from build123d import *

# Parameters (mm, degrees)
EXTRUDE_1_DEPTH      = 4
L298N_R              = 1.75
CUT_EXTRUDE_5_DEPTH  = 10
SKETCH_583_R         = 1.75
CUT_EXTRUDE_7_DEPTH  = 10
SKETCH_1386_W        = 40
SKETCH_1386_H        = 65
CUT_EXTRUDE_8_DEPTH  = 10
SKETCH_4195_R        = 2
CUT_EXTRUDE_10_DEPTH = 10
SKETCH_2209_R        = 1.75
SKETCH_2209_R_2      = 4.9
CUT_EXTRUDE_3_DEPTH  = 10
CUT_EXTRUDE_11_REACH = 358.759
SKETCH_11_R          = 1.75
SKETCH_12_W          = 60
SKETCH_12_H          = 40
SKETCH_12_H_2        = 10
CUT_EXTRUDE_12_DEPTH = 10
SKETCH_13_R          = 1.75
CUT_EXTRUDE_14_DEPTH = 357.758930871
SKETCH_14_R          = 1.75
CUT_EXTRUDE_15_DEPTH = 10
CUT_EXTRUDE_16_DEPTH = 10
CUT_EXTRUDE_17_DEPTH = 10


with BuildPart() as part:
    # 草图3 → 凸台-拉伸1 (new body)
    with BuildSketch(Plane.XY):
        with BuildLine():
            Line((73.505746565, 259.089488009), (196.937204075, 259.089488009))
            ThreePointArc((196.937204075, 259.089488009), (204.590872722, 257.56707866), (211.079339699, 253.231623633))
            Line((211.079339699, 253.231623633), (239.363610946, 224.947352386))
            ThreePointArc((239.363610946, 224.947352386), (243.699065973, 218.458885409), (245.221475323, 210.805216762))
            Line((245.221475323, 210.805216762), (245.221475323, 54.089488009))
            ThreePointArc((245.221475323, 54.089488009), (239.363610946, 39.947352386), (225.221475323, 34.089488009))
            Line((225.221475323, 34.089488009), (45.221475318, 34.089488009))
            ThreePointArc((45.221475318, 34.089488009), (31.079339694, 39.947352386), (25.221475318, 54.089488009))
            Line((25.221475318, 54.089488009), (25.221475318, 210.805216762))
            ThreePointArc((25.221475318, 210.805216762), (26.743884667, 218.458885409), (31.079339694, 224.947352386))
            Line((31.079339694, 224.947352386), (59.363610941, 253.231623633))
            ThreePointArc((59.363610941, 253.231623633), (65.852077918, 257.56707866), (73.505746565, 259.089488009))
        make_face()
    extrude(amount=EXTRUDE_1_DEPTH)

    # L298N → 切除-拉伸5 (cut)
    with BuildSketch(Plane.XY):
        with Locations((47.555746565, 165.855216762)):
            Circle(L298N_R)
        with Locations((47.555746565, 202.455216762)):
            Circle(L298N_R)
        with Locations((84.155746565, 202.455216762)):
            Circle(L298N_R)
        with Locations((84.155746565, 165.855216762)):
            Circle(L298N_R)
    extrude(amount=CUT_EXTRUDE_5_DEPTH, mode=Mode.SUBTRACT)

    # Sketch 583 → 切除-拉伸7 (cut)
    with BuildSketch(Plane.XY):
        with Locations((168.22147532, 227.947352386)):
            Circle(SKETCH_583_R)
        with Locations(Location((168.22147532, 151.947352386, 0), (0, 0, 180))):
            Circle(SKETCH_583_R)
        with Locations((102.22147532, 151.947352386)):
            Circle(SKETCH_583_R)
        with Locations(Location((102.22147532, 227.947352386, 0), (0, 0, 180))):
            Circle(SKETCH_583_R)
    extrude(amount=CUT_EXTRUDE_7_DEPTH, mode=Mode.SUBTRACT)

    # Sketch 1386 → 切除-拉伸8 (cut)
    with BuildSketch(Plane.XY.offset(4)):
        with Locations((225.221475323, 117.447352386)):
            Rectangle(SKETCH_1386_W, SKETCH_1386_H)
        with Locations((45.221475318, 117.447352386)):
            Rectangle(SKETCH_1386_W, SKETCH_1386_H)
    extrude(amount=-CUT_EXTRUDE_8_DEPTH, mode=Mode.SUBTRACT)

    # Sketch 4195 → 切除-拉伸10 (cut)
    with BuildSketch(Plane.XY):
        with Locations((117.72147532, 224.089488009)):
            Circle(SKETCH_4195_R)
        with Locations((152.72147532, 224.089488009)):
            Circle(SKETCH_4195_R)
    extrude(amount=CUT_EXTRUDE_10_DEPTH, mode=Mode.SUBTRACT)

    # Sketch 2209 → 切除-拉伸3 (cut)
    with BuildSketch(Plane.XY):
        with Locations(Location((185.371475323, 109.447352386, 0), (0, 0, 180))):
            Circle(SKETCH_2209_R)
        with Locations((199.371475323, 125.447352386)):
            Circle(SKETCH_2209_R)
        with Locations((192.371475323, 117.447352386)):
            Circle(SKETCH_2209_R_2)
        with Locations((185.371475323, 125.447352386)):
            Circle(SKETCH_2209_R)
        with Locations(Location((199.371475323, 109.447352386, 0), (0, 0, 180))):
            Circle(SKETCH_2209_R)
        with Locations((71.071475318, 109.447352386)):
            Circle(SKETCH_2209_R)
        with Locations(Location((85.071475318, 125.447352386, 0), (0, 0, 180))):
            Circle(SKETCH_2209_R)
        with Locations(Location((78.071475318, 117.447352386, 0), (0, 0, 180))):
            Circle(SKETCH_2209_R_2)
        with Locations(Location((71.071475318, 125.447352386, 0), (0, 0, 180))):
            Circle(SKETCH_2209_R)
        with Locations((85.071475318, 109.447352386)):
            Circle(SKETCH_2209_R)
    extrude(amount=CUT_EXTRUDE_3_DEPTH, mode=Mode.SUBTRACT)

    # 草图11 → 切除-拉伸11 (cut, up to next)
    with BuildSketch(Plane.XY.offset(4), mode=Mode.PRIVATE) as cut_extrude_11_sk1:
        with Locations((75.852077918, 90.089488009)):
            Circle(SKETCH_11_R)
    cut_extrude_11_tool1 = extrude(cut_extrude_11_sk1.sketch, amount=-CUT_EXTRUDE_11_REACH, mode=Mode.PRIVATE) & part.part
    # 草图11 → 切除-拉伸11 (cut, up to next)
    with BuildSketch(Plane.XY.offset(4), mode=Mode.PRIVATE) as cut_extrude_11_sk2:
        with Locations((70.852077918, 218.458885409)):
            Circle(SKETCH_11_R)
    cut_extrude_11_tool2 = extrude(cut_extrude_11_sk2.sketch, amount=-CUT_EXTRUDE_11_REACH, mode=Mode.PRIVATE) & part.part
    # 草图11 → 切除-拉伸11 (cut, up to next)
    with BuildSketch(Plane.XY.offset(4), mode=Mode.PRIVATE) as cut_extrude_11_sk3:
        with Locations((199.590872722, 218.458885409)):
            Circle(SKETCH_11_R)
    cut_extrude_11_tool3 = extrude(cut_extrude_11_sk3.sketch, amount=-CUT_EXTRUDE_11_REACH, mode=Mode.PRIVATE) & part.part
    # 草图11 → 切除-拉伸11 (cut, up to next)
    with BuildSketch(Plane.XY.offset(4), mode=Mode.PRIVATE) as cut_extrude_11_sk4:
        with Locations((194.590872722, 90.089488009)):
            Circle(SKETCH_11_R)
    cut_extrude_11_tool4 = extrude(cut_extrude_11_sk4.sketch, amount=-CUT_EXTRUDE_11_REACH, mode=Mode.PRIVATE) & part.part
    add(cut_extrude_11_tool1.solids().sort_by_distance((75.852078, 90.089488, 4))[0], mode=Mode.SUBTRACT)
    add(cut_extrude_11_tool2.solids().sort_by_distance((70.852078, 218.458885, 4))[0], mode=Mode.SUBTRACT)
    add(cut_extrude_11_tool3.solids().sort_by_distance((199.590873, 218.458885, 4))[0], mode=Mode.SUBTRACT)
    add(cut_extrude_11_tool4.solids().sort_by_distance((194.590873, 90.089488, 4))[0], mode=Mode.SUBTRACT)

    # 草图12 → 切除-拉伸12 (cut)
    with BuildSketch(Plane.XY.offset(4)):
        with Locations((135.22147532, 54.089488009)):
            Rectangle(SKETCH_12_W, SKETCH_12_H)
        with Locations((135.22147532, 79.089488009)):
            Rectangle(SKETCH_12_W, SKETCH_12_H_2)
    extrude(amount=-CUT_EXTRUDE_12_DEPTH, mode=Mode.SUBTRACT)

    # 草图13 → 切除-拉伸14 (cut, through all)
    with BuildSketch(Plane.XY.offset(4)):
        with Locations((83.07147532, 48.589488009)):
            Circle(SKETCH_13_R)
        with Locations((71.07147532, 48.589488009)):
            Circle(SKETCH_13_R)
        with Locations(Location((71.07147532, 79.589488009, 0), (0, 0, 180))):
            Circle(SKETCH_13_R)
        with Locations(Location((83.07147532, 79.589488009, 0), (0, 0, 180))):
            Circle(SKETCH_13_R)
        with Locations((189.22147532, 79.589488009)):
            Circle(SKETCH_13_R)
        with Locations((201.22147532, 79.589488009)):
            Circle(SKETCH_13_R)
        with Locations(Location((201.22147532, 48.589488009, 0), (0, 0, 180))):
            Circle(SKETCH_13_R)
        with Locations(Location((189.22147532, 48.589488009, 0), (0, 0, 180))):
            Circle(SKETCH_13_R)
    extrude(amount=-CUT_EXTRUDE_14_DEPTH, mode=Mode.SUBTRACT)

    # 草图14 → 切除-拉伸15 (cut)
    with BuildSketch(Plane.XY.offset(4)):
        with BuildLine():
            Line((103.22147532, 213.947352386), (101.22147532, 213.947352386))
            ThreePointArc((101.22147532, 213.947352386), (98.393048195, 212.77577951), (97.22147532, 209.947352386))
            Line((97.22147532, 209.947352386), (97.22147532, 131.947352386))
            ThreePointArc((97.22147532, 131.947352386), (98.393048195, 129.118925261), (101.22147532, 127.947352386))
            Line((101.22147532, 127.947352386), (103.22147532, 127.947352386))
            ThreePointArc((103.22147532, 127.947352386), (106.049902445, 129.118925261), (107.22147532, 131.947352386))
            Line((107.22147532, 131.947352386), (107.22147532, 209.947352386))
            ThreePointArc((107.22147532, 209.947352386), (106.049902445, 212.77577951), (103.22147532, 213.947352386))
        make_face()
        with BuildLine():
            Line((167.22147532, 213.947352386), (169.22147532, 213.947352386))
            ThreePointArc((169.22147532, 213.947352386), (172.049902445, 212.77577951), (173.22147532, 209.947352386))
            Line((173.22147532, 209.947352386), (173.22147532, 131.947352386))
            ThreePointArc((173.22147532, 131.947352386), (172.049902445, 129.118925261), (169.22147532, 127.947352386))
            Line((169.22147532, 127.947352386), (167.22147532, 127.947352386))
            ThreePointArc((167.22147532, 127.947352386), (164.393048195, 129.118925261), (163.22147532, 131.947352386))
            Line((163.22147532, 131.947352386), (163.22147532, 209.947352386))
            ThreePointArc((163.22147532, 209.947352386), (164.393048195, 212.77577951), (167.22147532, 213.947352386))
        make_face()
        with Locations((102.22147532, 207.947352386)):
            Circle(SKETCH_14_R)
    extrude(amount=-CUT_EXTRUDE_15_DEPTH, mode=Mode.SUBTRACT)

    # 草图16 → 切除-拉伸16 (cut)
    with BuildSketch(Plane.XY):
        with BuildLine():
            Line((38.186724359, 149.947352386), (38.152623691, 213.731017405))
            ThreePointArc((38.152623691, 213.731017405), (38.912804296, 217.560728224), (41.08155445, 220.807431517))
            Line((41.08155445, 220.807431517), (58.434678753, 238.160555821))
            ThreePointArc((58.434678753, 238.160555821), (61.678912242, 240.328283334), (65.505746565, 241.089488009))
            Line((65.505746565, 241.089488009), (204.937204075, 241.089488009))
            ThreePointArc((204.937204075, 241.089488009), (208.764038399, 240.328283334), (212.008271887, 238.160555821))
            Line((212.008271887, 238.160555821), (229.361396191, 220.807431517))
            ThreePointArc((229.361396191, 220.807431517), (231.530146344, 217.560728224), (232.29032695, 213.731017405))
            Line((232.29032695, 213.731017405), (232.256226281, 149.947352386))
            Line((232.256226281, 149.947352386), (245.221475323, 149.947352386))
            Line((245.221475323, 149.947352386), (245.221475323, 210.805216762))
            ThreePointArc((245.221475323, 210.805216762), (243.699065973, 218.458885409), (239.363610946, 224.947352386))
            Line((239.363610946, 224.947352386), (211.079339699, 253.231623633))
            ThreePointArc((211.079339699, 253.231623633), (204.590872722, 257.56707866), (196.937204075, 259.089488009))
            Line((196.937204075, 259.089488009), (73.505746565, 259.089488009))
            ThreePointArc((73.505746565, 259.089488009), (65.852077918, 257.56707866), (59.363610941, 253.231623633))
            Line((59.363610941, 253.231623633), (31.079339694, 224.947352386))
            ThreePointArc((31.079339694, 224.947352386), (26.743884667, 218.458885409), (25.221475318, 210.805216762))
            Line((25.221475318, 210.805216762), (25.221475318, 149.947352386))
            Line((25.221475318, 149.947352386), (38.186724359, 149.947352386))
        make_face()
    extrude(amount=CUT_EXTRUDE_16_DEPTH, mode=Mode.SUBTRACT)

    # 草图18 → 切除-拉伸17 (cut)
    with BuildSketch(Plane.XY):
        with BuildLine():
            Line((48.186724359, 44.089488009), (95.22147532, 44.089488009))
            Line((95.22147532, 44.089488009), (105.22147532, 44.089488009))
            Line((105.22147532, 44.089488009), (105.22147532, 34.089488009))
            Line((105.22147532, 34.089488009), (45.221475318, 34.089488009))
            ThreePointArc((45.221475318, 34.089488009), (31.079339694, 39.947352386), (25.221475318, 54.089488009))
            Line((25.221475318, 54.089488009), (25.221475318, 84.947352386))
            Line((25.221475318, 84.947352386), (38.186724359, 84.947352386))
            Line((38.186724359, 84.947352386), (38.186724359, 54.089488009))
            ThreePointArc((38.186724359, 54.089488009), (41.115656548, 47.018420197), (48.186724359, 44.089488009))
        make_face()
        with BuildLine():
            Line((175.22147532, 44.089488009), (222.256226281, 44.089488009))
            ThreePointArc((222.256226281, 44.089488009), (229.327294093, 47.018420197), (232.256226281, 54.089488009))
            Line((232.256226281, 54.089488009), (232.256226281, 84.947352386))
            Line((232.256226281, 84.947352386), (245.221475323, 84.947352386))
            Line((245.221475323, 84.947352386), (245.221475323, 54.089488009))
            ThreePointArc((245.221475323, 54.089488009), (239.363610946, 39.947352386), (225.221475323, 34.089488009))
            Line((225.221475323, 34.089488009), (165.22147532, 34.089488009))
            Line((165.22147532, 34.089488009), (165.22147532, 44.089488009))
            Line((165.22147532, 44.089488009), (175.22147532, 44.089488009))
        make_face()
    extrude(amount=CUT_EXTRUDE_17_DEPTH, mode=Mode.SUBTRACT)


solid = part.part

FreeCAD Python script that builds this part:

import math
import FreeCAD as App
import Part
import Sketcher

V = App.Vector
Q = App.Units.Quantity


def add_polygon(sketch, points):
    """Adds a closed chain of lines whose ends are joined by coincident constraints."""
    first, n = sketch.GeometryCount, len(points)
    for a, b in zip(points, points[1:] + points[:1]):
        sketch.addGeometry(Part.LineSegment(App.Vector(*a, 0), App.Vector(*b, 0)), False)
    for i in range(n):
        sketch.addConstraint(Sketcher.Constraint("Coincident", first + i, 2, first + (i + 1) % n, 1))

doc = App.newDocument("Part")
body = doc.addObject("PartDesign::Body", "Body")

sketch1 = doc.addObject("Sketcher::SketchObject", "Sketch")
body.addObject(sketch1)
sketch1.AttachmentSupport = (doc.XY_Plane, [""])
sketch1.MapMode = "FlatFace"
sketch1.addGeometry(Part.LineSegment(V(197, 259, 0), V(74, 259, 0)), False)
sketch1.addGeometry(Part.ArcOfCircle(Part.Circle(V(74, 239, 0), V(0, 0, 1), 20), math.radians(90), math.radians(135)), False)
sketch1.addGeometry(Part.LineSegment(V(59, 253, 0), V(31, 225, 0)), False)
sketch1.addGeometry(Part.ArcOfCircle(Part.Circle(V(45, 211, 0), V(0, 0, 1), 20), math.radians(135), math.radians(180)), False)
sketch1.addGeometry(Part.LineSegment(V(25, 211, 0), V(25, 54, 0)), False)
sketch1.addGeometry(Part.ArcOfCircle(Part.Circle(V(45, 54, 0), V(0, 0, 1), 20), math.radians(-180), math.radians(-90)), False)
sketch1.addGeometry(Part.LineSegment(V(45, 34, 0), V(225, 34, 0)), False)
sketch1.addGeometry(Part.ArcOfCircle(Part.Circle(V(225, 54, 0), V(0, 0, 1), 20), math.radians(-90), math.radians(0)), False)
sketch1.addGeometry(Part.LineSegment(V(245, 54, 0), V(245, 211, 0)), False)
sketch1.addGeometry(Part.ArcOfCircle(Part.Circle(V(225, 211, 0), V(0, 0, 1), 20), math.radians(0), math.radians(45)), False)
sketch1.addGeometry(Part.LineSegment(V(239, 225, 0), V(211, 253, 0)), False)
sketch1.addGeometry(Part.ArcOfCircle(Part.Circle(V(197, 239, 0), V(0, 0, 1), 20), math.radians(45), math.radians(90)), False)
sketch1.addConstraint(Sketcher.Constraint("Tangent", 0, 2, 1, 1))
sketch1.addConstraint(Sketcher.Constraint("Tangent", 1, 2, 2, 1))
sketch1.addConstraint(Sketcher.Constraint("Tangent", 2, 2, 3, 1))
sketch1.addConstraint(Sketcher.Constraint("Tangent", 3, 2, 4, 1))
sketch1.addConstraint(Sketcher.Constraint("Tangent", 4, 2, 5, 1))
sketch1.addConstraint(Sketcher.Constraint("Tangent", 5, 2, 6, 1))
sketch1.addConstraint(Sketcher.Constraint("Tangent", 6, 2, 7, 1))
sketch1.addConstraint(Sketcher.Constraint("Tangent", 7, 2, 8, 1))
sketch1.addConstraint(Sketcher.Constraint("Tangent", 8, 2, 9, 1))
sketch1.addConstraint(Sketcher.Constraint("Tangent", 9, 2, 10, 1))
sketch1.addConstraint(Sketcher.Constraint("Tangent", 10, 2, 11, 1))
sketch1.addConstraint(Sketcher.Constraint("Tangent", 11, 2, 0, 1))
sketch1.addConstraint(Sketcher.Constraint("Horizontal", 0))
sketch1.addConstraint(Sketcher.Constraint("Vertical", 4))
sketch1.addConstraint(Sketcher.Constraint("Horizontal", 6))
sketch1.addConstraint(Sketcher.Constraint("Vertical", 8))
sketch1.addConstraint(Sketcher.Constraint("Equal", 1, 3))
sketch1.addConstraint(Sketcher.Constraint("Equal", 3, 5))
sketch1.addConstraint(Sketcher.Constraint("Equal", 5, 7))
sketch1.addConstraint(Sketcher.Constraint("Equal", 7, 9))
sketch1.addConstraint(Sketcher.Constraint("Equal", 9, 11))
sketch1.addConstraint(Sketcher.Constraint("Perpendicular", 2, 10))
sketch1.addConstraint(Sketcher.Constraint("Horizontal", 3, 3, 9, 3))
sketch1.addConstraint(Sketcher.Constraint("Horizontal", 2, 2, 9, 2))
sketch1.addConstraint(Sketcher.Constraint("Radius", 1, Q("20 mm")))
sketch1.addConstraint(Sketcher.Constraint("DistanceX", 6, 1, 6, 2, Q("180 mm")))
sketch1.addConstraint(Sketcher.Constraint("Distance", 2, Q("40 mm")))
sketch1.addConstraint(Sketcher.Constraint("DistanceY", 5, 3, 1, 3, Q("185 mm")))
sketch1.addConstraint(Sketcher.Constraint("DistanceY", -1, 1, 1, 3, Q("239.089488 mm")))
sketch1.addConstraint(Sketcher.Constraint("DistanceX", -1, 1, 1, 2, Q("59.363611 mm")))
pad1 = doc.addObject("PartDesign::Pad", "Pad")
body.addObject(pad1)
pad1.Profile = sketch1
pad1.Length = 4

sketch2 = doc.addObject("Sketcher::SketchObject", "Sketch001")
body.addObject(sketch2)
sketch2.AttachmentSupport = (doc.XY_Plane, [""])
sketch2.MapMode = "FlatFace"
sketch2.addGeometry(Part.Circle(V(47.6, 165.9, 0), V(0, 0, 1), 1.8), False)
sketch2.addGeometry(Part.Circle(V(47.6, 202.5, 0), V(0, 0, 1), 1.8), False)
sketch2.addGeometry(Part.Circle(V(84.2, 202.5, 0), V(0, 0, 1), 1.8), False)
sketch2.addGeometry(Part.Circle(V(84.2, 165.9, 0), V(0, 0, 1), 1.8), False)
sketch2.addConstraint(Sketcher.Constraint("Equal", 0, 1))
sketch2.addConstraint(Sketcher.Constraint("Equal", 1, 2))
sketch2.addConstraint(Sketcher.Constraint("Equal", 2, 3))
sketch2.addConstraint(Sketcher.Constraint("Horizontal", 1, 3, 2, 3))
sketch2.addConstraint(Sketcher.Constraint("Horizontal", 0, 3, 3, 3))
sketch2.addConstraint(Sketcher.Constraint("Vertical", 0, 3, 1, 3))
sketch2.addConstraint(Sketcher.Constraint("Vertical", 2, 3, 3, 3))
sketch2.addConstraint(Sketcher.Constraint("Diameter", 0, Q("3.5 mm")))
sketch2.addConstraint(Sketcher.Constraint("DistanceY", 0, 3, 1, 3, Q("36.6 mm")))
sketch2.addConstraint(Sketcher.Constraint("DistanceX", 1, 3, 2, 3, Q("36.6 mm")))
sketch2.addConstraint(Sketcher.Constraint("DistanceX", -1, 1, 0, 3, Q("47.555747 mm")))
sketch2.addConstraint(Sketcher.Constraint("DistanceY", -1, 1, 0, 3, Q("165.855217 mm")))
pocket1 = doc.addObject("PartDesign::Pocket", "Pocket")
body.addObject(pocket1)
pocket1.Profile = sketch2
pocket1.Length = 10
pocket1.Reversed = True

sketch3 = doc.addObject("Sketcher::SketchObject", "Sketch002")
body.addObject(sketch3)
sketch3.AttachmentSupport = (doc.XY_Plane, [""])
sketch3.MapMode = "FlatFace"
sketch3.addGeometry(Part.Circle(V(168.2, 227.9, 0), V(0, 0, 1), 1.8), False)
sketch3.addGeometry(Part.Circle(V(168.2, 151.9, 0), V(0, 0, 1), 1.8), False)
sketch3.addGeometry(Part.Circle(V(102.2, 151.9, 0), V(0, 0, 1), 1.8), False)
sketch3.addGeometry(Part.Circle(V(102.2, 227.9, 0), V(0, 0, 1), 1.8), False)
sketch3.addConstraint(Sketcher.Constraint("Equal", 0, 1))
sketch3.addConstraint(Sketcher.Constraint("Equal", 1, 2))
sketch3.addConstraint(Sketcher.Constraint("Equal", 2, 3))
sketch3.addConstraint(Sketcher.Constraint("Horizontal", 1, 3, 2, 3))
sketch3.addConstraint(Sketcher.Constraint("Horizontal", 0, 3, 3, 3))
sketch3.addConstraint(Sketcher.Constraint("Vertical", 0, 3, 1, 3))
sketch3.addConstraint(Sketcher.Constraint("Vertical", 2, 3, 3, 3))
sketch3.addConstraint(Sketcher.Constraint("Diameter", 0, Q("3.5 mm")))
sketch3.addConstraint(Sketcher.Constraint("DistanceY", 1, 3, 0, 3, Q("76 mm")))
sketch3.addConstraint(Sketcher.Constraint("DistanceX", 2, 3, 1, 3, Q("66 mm")))
sketch3.addConstraint(Sketcher.Constraint("DistanceX", -1, 1, 0, 3, Q("168.221475 mm")))
sketch3.addConstraint(Sketcher.Constraint("DistanceY", -1, 1, 0, 3, Q("227.947352 mm")))
pocket2 = doc.addObject("PartDesign::Pocket", "Pocket001")
body.addObject(pocket2)
pocket2.Profile = sketch3
pocket2.Length = 10
pocket2.Reversed = True

sketch4 = doc.addObject("Sketcher::SketchObject", "Sketch003")
body.addObject(sketch4)
sketch4.AttachmentSupport = (doc.XY_Plane, [""])
sketch4.MapMode = "FlatFace"
sketch4.AttachmentOffset = App.Placement(V(0, 0, 4), App.Rotation())
add_polygon(sketch4, [(205, 150), (205, 85), (245, 85), (245, 150)])
add_polygon(sketch4, [(25, 150), (25, 85), (65, 85), (65, 150)])
sketch4.addConstraint(Sketcher.Constraint("Vertical", 0))
sketch4.addConstraint(Sketcher.Constraint("Horizontal", 1))
sketch4.addConstraint(Sketcher.Constraint("Vertical", 2))
sketch4.addConstraint(Sketcher.Constraint("Horizontal", 3))
sketch4.addConstraint(Sketcher.Constraint("Vertical", 4))
sketch4.addConstraint(Sketcher.Constraint("Horizontal", 5))
sketch4.addConstraint(Sketcher.Constraint("Vertical", 6))
sketch4.addConstraint(Sketcher.Constraint("Horizontal", 7))
sketch4.addConstraint(Sketcher.Constraint("Horizontal", 1, 2, 4, 2))
sketch4.addConstraint(Sketcher.Constraint("Horizontal", 3, 2, 6, 2))
sketch4.addConstraint(Sketcher.Constraint("Equal", 3, 5))
sketch4.addConstraint(Sketcher.Constraint("DistanceX", 1, 1, 1, 2, Q("40 mm")))
sketch4.addConstraint(Sketcher.Constraint("DistanceY", 0, 2, 0, 1, Q("65 mm")))
sketch4.addConstraint(Sketcher.Constraint("DistanceX", 4, 2, 0, 2, Q("180 mm")))
sketch4.addConstraint(Sketcher.Constraint("DistanceX", -1, 1, 0, 2, Q("205.221475 mm")))
sketch4.addConstraint(Sketcher.Constraint("DistanceY", -1, 1, 0, 2, Q("84.947352 mm")))
pocket3 = doc.addObject("PartDesign::Pocket", "Pocket002")
body.addObject(pocket3)
pocket3.Profile = sketch4
pocket3.Length = 10

sketch5 = doc.addObject("Sketcher::SketchObject", "Sketch004")
body.addObject(sketch5)
sketch5.AttachmentSupport = (doc.XY_Plane, [""])
sketch5.MapMode = "FlatFace"
sketch5.addGeometry(Part.Circle(V(117.7, 224.1, 0), V(0, 0, 1), 2), False)
sketch5.addGeometry(Part.Circle(V(152.7, 224.1, 0), V(0, 0, 1), 2), False)
sketch5.addConstraint(Sketcher.Constraint("Equal", 0, 1))
sketch5.addConstraint(Sketcher.Constraint("Horizontal", 0, 3, 1, 3))
sketch5.addConstraint(Sketcher.Constraint("Diameter", 0, Q("4 mm")))
sketch5.addConstraint(Sketcher.Constraint("DistanceX", 0, 3, 1, 3, Q("35 mm")))
sketch5.addConstraint(Sketcher.Constraint("DistanceY", -1, 1, 0, 3, Q("224.089488 mm")))
sketch5.addConstraint(Sketcher.Constraint("DistanceX", -1, 1, 0, 3, Q("117.721475 mm")))
pocket4 = doc.addObject("PartDesign::Pocket", "Pocket003")
body.addObject(pocket4)
pocket4.Profile = sketch5
pocket4.Length = 10
pocket4.Reversed = True

sketch6 = doc.addObject("Sketcher::SketchObject", "Sketch005")
body.addObject(sketch6)
sketch6.AttachmentSupport = (doc.XY_Plane, [""])
sketch6.MapMode = "FlatFace"
sketch6.addGeometry(Part.Circle(V(185.4, 109.4, 0), V(0, 0, 1), 1.8), False)
sketch6.addGeometry(Part.Circle(V(199.4, 125.4, 0), V(0, 0, 1), 1.8), False)
sketch6.addGeometry(Part.Circle(V(192.4, 117.4, 0), V(0, 0, 1), 4.9), False)
sketch6.addGeometry(Part.Circle(V(185.4, 125.4, 0), V(0, 0, 1), 1.8), False)
sketch6.addGeometry(Part.Circle(V(199.4, 109.4, 0), V(0, 0, 1), 1.8), False)
sketch6.addGeometry(Part.Circle(V(71.1, 109.4, 0), V(0, 0, 1), 1.8), False)
sketch6.addGeometry(Part.Circle(V(85.1, 125.4, 0), V(0, 0, 1), 1.8), False)
sketch6.addGeometry(Part.Circle(V(78.1, 117.4, 0), V(0, 0, 1), 4.9), False)
sketch6.addGeometry(Part.Circle(V(71.1, 125.4, 0), V(0, 0, 1), 1.8), False)
sketch6.addGeometry(Part.Circle(V(85.1, 109.4, 0), V(0, 0, 1), 1.8), False)
sketch6.addConstraint(Sketcher.Constraint("Equal", 0, 1))
sketch6.addConstraint(Sketcher.Constraint("Equal", 1, 3))
sketch6.addConstraint(Sketcher.Constraint("Equal", 3, 4))
sketch6.addConstraint(Sketcher.Constraint("Equal", 4, 5))
sketch6.addConstraint(Sketcher.Constraint("Equal", 5, 6))
sketch6.addConstraint(Sketcher.Constraint("Equal", 2, 7))
sketch6.addConstraint(Sketcher.Constraint("Equal", 6, 8))
sketch6.addConstraint(Sketcher.Constraint("Equal", 8, 9))
sketch6.addConstraint(Sketcher.Constraint("Horizontal", 1, 3, 3, 3))
sketch6.addConstraint(Sketcher.Constraint("Horizontal", 0, 3, 4, 3))
sketch6.addConstraint(Sketcher.Constraint("Horizontal", 4, 3, 5, 3))
sketch6.addConstraint(Sketcher.Constraint("Horizontal", 3, 3, 6, 3))
sketch6.addConstraint(Sketcher.Constraint("Horizontal", 2, 3, 7, 3))
sketch6.addConstraint(Sketcher.Constraint("Horizontal", 6, 3, 8, 3))
sketch6.addConstraint(Sketcher.Constraint("Horizontal", 5, 3, 9, 3))
sketch6.addConstraint(Sketcher.Constraint("Vertical", 0, 3, 3, 3))
sketch6.addConstraint(Sketcher.Constraint("Vertical", 1, 3, 4, 3))
sketch6.addConstraint(Sketcher.Constraint("Vertical", 5, 3, 8, 3))
sketch6.addConstraint(Sketcher.Constraint("Vertical", 6, 3, 9, 3))
sketch6.addConstraint(Sketcher.Constraint("Diameter", 0, Q("3.5 mm")))
sketch6.addConstraint(Sketcher.Constraint("Diameter", 2, Q("9.8 mm")))
sketch6.addConstraint(Sketcher.Constraint("DistanceX", 0, 3, 1, 3, Q("14 mm")))
sketch6.addConstraint(Sketcher.Constraint("DistanceY", 0, 3, 1, 3, Q("16 mm")))
sketch6.addConstraint(Sketcher.Constraint("DistanceX", 0, 3, 2, 3, Q("7 mm")))
sketch6.addConstraint(Sketcher.Constraint("DistanceY", 0, 3, 2, 3, Q("8 mm")))
sketch6.addConstraint(Sketcher.Constraint("DistanceX", 5, 3, 6, 3, Q("14 mm")))
sketch6.addConstraint(Sketcher.Constraint("DistanceX", 5, 3, 7, 3, Q("7 mm")))
sketch6.addConstraint(Sketcher.Constraint("DistanceX", 5, 3, 0, 3, Q("114.3 mm")))
sketch6.addConstraint(Sketcher.Constraint("DistanceX", -1, 1, 0, 3, Q("185.371475 mm")))
sketch6.addConstraint(Sketcher.Constraint("DistanceY", -1, 1, 0, 3, Q("109.447352 mm")))
pocket5 = doc.addObject("PartDesign::Pocket", "Pocket004")
body.addObject(pocket5)
pocket5.Profile = sketch6
pocket5.Length = 10
pocket5.Reversed = True

sketch7 = doc.addObject("Sketcher::SketchObject", "Sketch006")
body.addObject(sketch7)
sketch7.AttachmentSupport = (doc.XY_Plane, [""])
sketch7.MapMode = "FlatFace"
sketch7.AttachmentOffset = App.Placement(V(0, 0, 4), App.Rotation())
sketch7.addGeometry(Part.Circle(V(75.9, 90.1, 0), V(0, 0, 1), 1.8), False)
sketch7.addConstraint(Sketcher.Constraint("Diameter", 0, Q("3.5 mm")))
sketch7.addConstraint(Sketcher.Constraint("DistanceY", -1, 1, 0, 3, Q("90.089488 mm")))
sketch7.addConstraint(Sketcher.Constraint("DistanceX", -1, 1, 0, 3, Q("75.852078 mm")))
pocket6 = doc.addObject("PartDesign::Pocket", "Pocket005")
body.addObject(pocket6)
pocket6.Profile = sketch7
pocket6.Type = "UpToFirst"

sketch8 = doc.addObject("Sketcher::SketchObject", "Sketch007")
body.addObject(sketch8)
sketch8.AttachmentSupport = (doc.XY_Plane, [""])
sketch8.MapMode = "FlatFace"
sketch8.AttachmentOffset = App.Placement(V(0, 0, 4), App.Rotation())
sketch8.addGeometry(Part.Circle(V(70.9, 218.5, 0), V(0, 0, 1), 1.8), False)
sketch8.addConstraint(Sketcher.Constraint("Diameter", 0, Q("3.5 mm")))
sketch8.addConstraint(Sketcher.Constraint("DistanceX", -1, 1, 0, 3, Q("70.852078 mm")))
sketch8.addConstraint(Sketcher.Constraint("DistanceY", -1, 1, 0, 3, Q("218.458885 mm")))
pocket7 = doc.addObject("PartDesign::Pocket", "Pocket006")
body.addObject(pocket7)
pocket7.Profile = sketch8
pocket7.Type = "UpToFirst"

sketch9 = doc.addObject("Sketcher::SketchObject", "Sketch008")
body.addObject(sketch9)
sketch9.AttachmentSupport = (doc.XY_Plane, [""])
sketch9.MapMode = "FlatFace"
sketch9.AttachmentOffset = App.Placement(V(0, 0, 4), App.Rotation())
sketch9.addGeometry(Part.Circle(V(199.6, 218.5, 0), V(0, 0, 1), 1.8), False)
sketch9.addConstraint(Sketcher.Constraint("Diameter", 0, Q("3.5 mm")))
sketch9.addConstraint(Sketcher.Constraint("DistanceX", -1, 1, 0, 3, Q("199.590873 mm")))
sketch9.addConstraint(Sketcher.Constraint("DistanceY", -1, 1, 0, 3, Q("218.458885 mm")))
pocket8 = doc.addObject("PartDesign::Pocket", "Pocket007")
body.addObject(pocket8)
pocket8.Profile = sketch9
pocket8.Type = "UpToFirst"

sketch10 = doc.addObject("Sketcher::SketchObject", "Sketch009")
body.addObject(sketch10)
sketch10.AttachmentSupport = (doc.XY_Plane, [""])
sketch10.MapMode = "FlatFace"
sketch10.AttachmentOffset = App.Placement(V(0, 0, 4), App.Rotation())
sketch10.addGeometry(Part.Circle(V(194.6, 90.1, 0), V(0, 0, 1), 1.8), False)
sketch10.addConstraint(Sketcher.Constraint("Diameter", 0, Q("3.5 mm")))
sketch10.addConstraint(Sketcher.Constraint("DistanceY", -1, 1, 0, 3, Q("90.089488 mm")))
sketch10.addConstraint(Sketcher.Constraint("DistanceX", -1, 1, 0, 3, Q("194.590873 mm")))
pocket9 = doc.addObject("PartDesign::Pocket", "Pocket008")
body.addObject(pocket9)
pocket9.Profile = sketch10
pocket9.Type = "UpToFirst"

sketch11 = doc.addObject("Sketcher::SketchObject", "Sketch010")
body.addObject(sketch11)
sketch11.AttachmentSupport = (doc.XY_Plane, [""])
sketch11.MapMode = "FlatFace"
sketch11.AttachmentOffset = App.Placement(V(0, 0, 4), App.Rotation())
add_polygon(sketch11, [(105, 34), (165, 34), (165, 84), (105, 84)])
sketch11.addConstraint(Sketcher.Constraint("Horizontal", 0))
sketch11.addConstraint(Sketcher.Constraint("Vertical", 1))
sketch11.addConstraint(Sketcher.Constraint("Horizontal", 2))
sketch11.addConstraint(Sketcher.Constraint("Vertical", 3))
sketch11.addConstraint(Sketcher.Constraint("DistanceX", 0, 1, 0, 2, Q("60 mm")))
sketch11.addConstraint(Sketcher.Constraint("DistanceY", 1, 1, 1, 2, Q("50 mm")))
sketch11.addConstraint(Sketcher.Constraint("DistanceY", -1, 1, 0, 2, Q("34.089488 mm")))
sketch11.addConstraint(Sketcher.Constraint("DistanceX", -1, 1, 0, 2, Q("165.221475 mm")))
pocket10 = doc.addObject("PartDesign::Pocket", "Pocket009")
body.addObject(pocket10)
pocket10.Profile = sketch11
pocket10.Length = 10

sketch12 = doc.addObject("Sketcher::SketchObject", "Sketch011")
body.addObject(sketch12)
sketch12.AttachmentSupport = (doc.XY_Plane, [""])
sketch12.MapMode = "FlatFace"
sketch12.AttachmentOffset = App.Placement(V(0, 0, 4), App.Rotation())
sketch12.addGeometry(Part.Circle(V(83.1, 48.6, 0), V(0, 0, 1), 1.8), False)
sketch12.addGeometry(Part.Circle(V(71.1, 48.6, 0), V(0, 0, 1), 1.8), False)
sketch12.addGeometry(Part.Circle(V(71.1, 79.6, 0), V(0, 0, 1), 1.8), False)
sketch12.addGeometry(Part.Circle(V(83.1, 79.6, 0), V(0, 0, 1), 1.8), False)
sketch12.addGeometry(Part.Circle(V(189.2, 79.6, 0), V(0, 0, 1), 1.8), False)
sketch12.addGeometry(Part.Circle(V(201.2, 79.6, 0), V(0, 0, 1), 1.8), False)
sketch12.addGeometry(Part.Circle(V(201.2, 48.6, 0), V(0, 0, 1), 1.8), False)
sketch12.addGeometry(Part.Circle(V(189.2, 48.6, 0), V(0, 0, 1), 1.8), False)
sketch12.addConstraint(Sketcher.Constraint("Equal", 0, 1))
sketch12.addConstraint(Sketcher.Constraint("Equal", 1, 2))
sketch12.addConstraint(Sketcher.Constraint("Equal", 2, 3))
sketch12.addConstraint(Sketcher.Constraint("Equal", 3, 4))
sketch12.addConstraint(Sketcher.Constraint("Equal", 4, 5))
sketch12.addConstraint(Sketcher.Constraint("Equal", 5, 6))
sketch12.addConstraint(Sketcher.Constraint("Equal", 6, 7))
sketch12.addConstraint(Sketcher.Constraint("Horizontal", 0, 3, 1, 3))
sketch12.addConstraint(Sketcher.Constraint("Horizontal", 2, 3, 3, 3))
sketch12.addConstraint(Sketcher.Constraint("Horizontal", 3, 3, 4, 3))
sketch12.addConstraint(Sketcher.Constraint("Horizontal", 4, 3, 5, 3))
sketch12.addConstraint(Sketcher.Constraint("Horizontal", 1, 3, 6, 3))
sketch12.addConstraint(Sketcher.Constraint("Horizontal", 6, 3, 7, 3))
sketch12.addConstraint(Sketcher.Constraint("Vertical", 1, 3, 2, 3))
sketch12.addConstraint(Sketcher.Constraint("Vertical", 0, 3, 3, 3))
sketch12.addConstraint(Sketcher.Constraint("Vertical", 5, 3, 6, 3))
sketch12.addConstraint(Sketcher.Constraint("Vertical", 4, 3, 7, 3))
sketch12.addConstraint(Sketcher.Constraint("Diameter", 0, Q("3.5 mm")))
sketch12.addConstraint(Sketcher.Constraint("DistanceX", 1, 3, 0, 3, Q("12 mm")))
sketch12.addConstraint(Sketcher.Constraint("DistanceY", 1, 3, 2, 3, Q("31 mm")))
sketch12.addConstraint(Sketcher.Constraint("DistanceX", 4, 3, 5, 3, Q("12 mm")))
sketch12.addConstraint(Sketcher.Constraint("DistanceX", 3, 3, 4, 3, Q("106.15 mm")))
sketch12.addConstraint(Sketcher.Constraint("DistanceY", -1, 1, 0, 3, Q("48.589488 mm")))
sketch12.addConstraint(Sketcher.Constraint("DistanceX", -1, 1, 0, 3, Q("83.071475 mm")))
pocket11 = doc.addObject("PartDesign::Pocket", "Pocket010")
body.addObject(pocket11)
pocket11.Profile = sketch12
pocket11.Type = "ThroughAll"

sketch13 = doc.addObject("Sketcher::SketchObject", "Sketch012")
body.addObject(sketch13)
sketch13.AttachmentSupport = (doc.XY_Plane, [""])
sketch13.MapMode = "FlatFace"
sketch13.AttachmentOffset = App.Placement(V(0, 0, 4), App.Rotation())
sketch13.addGeometry(Part.LineSegment(V(103.2, 213.9, 0), V(101.2, 213.9, 0)), False)
sketch13.addGeometry(Part.ArcOfCircle(Part.Circle(V(101.2, 209.9, 0), V(0, 0, 1), 4), math.radians(90), math.radians(180)), False)
sketch13.addGeometry(Part.LineSegment(V(97.2, 209.9, 0), V(97.2, 131.9, 0)), False)
sketch13.addGeometry(Part.ArcOfCircle(Part.Circle(V(101.2, 131.9, 0), V(0, 0, 1), 4), math.radians(180), math.radians(270)), False)
sketch13.addGeometry(Part.LineSegment(V(101.2, 127.9, 0), V(103.2, 127.9, 0)), False)
sketch13.addGeometry(Part.ArcOfCircle(Part.Circle(V(103.2, 131.9, 0), V(0, 0, 1), 4), math.radians(-90), math.radians(0)), False)
sketch13.addGeometry(Part.LineSegment(V(107.2, 131.9, 0), V(107.2, 209.9, 0)), False)
sketch13.addGeometry(Part.ArcOfCircle(Part.Circle(V(103.2, 209.9, 0), V(0, 0, 1), 4), math.radians(0), math.radians(90)), False)
sketch13.addGeometry(Part.LineSegment(V(169.2, 213.9, 0), V(167.2, 213.9, 0)), False)
sketch13.addGeometry(Part.ArcOfCircle(Part.Circle(V(167.2, 209.9, 0), V(0, 0, 1), 4), math.radians(90), math.radians(180)), False)
sketch13.addGeometry(Part.LineSegment(V(163.2, 209.9, 0), V(163.2, 131.9, 0)), False)
sketch13.addGeometry(Part.ArcOfCircle(Part.Circle(V(167.2, 131.9, 0), V(0, 0, 1), 4), math.radians(180), math.radians(270)), False)
sketch13.addGeometry(Part.LineSegment(V(167.2, 127.9, 0), V(169.2, 127.9, 0)), False)
sketch13.addGeometry(Part.ArcOfCircle(Part.Circle(V(169.2, 131.9, 0), V(0, 0, 1), 4), math.radians(-90), math.radians(0)), False)
sketch13.addGeometry(Part.LineSegment(V(173.2, 131.9, 0), V(173.2, 209.9, 0)), False)
sketch13.addGeometry(Part.ArcOfCircle(Part.Circle(V(169.2, 209.9, 0), V(0, 0, 1), 4), math.radians(0), math.radians(90)), False)
sketch13.addConstraint(Sketcher.Constraint("Tangent", 0, 2, 1, 1))
sketch13.addConstraint(Sketcher.Constraint("Tangent", 1, 2, 2, 1))
sketch13.addConstraint(Sketcher.Constraint("Tangent", 2, 2, 3, 1))
sketch13.addConstraint(Sketcher.Constraint("Tangent", 3, 2, 4, 1))
sketch13.addConstraint(Sketcher.Constraint("Tangent", 4, 2, 5, 1))
sketch13.addConstraint(Sketcher.Constraint("Tangent", 5, 2, 6, 1))
sketch13.addConstraint(Sketcher.Constraint("Tangent", 6, 2, 7, 1))
sketch13.addConstraint(Sketcher.Constraint("Tangent", 7, 2, 0, 1))
sketch13.addConstraint(Sketcher.Constraint("Tangent", 8, 2, 9, 1))
sketch13.addConstraint(Sketcher.Constraint("Tangent", 9, 2, 10, 1))
sketch13.addConstraint(Sketcher.Constraint("Tangent", 10, 2, 11, 1))
sketch13.addConstraint(Sketcher.Constraint("Tangent", 11, 2, 12, 1))
sketch13.addConstraint(Sketcher.Constraint("Tangent", 12, 2, 13, 1))
sketch13.addConstraint(Sketcher.Constraint("Tangent", 13, 2, 14, 1))
sketch13.addConstraint(Sketcher.Constraint("Tangent", 14, 2, 15, 1))
sketch13.addConstraint(Sketcher.Constraint("Tangent", 15, 2, 8, 1))
sketch13.addConstraint(Sketcher.Constraint("Horizontal", 0))
sketch13.addConstraint(Sketcher.Constraint("Vertical", 2))
sketch13.addConstraint(Sketcher.Constraint("Horizontal", 4))
sketch13.addConstraint(Sketcher.Constraint("Vertical", 6))
sketch13.addConstraint(Sketcher.Constraint("Horizontal", 8))
sketch13.addConstraint(Sketcher.Constraint("Vertical", 10))
sketch13.addConstraint(Sketcher.Constraint("Horizontal", 12))
sketch13.addConstraint(Sketcher.Constraint("Vertical", 14))
sketch13.addConstraint(Sketcher.Constraint("Equal", 1, 3))
sketch13.addConstraint(Sketcher.Constraint("Equal", 3, 5))
sketch13.addConstraint(Sketcher.Constraint("Equal", 5, 7))
sketch13.addConstraint(Sketcher.Constraint("Equal", 7, 9))
sketch13.addConstraint(Sketcher.Constraint("Equal", 9, 11))
sketch13.addConstraint(Sketcher.Constraint("Equal", 11, 13))
sketch13.addConstraint(Sketcher.Constraint("Equal", 13, 15))
sketch13.addConstraint(Sketcher.Constraint("Horizontal", 7, 3, 9, 3))
sketch13.addConstraint(Sketcher.Constraint("Horizontal", 5, 3, 11, 3))
sketch13.addConstraint(Sketcher.Constraint("Equal", 4, 8))
sketch13.addConstraint(Sketcher.Constraint("Radius", 1, Q("4 mm")))
sketch13.addConstraint(Sketcher.Constraint("DistanceX", 0, 2, 0, 1, Q("2 mm")))
sketch13.addConstraint(Sketcher.Constraint("DistanceY", 2, 2, 2, 1, Q("78 mm")))
sketch13.addConstraint(Sketcher.Constraint("DistanceX", 7, 3, 9, 3, Q("64 mm")))
sketch13.addConstraint(Sketcher.Constraint("DistanceX", -1, 1, 1, 3, Q("101.221475 mm")))
sketch13.addConstraint(Sketcher.Constraint("DistanceY", -1, 1, 1, 3, Q("209.947352 mm")))
pocket12 = doc.addObject("PartDesign::Pocket", "Pocket011")
body.addObject(pocket12)
pocket12.Profile = sketch13
pocket12.Length = 10

sketch14 = doc.addObject("Sketcher::SketchObject", "Sketch013")
body.addObject(sketch14)
sketch14.AttachmentSupport = (doc.XY_Plane, [""])
sketch14.MapMode = "FlatFace"
sketch14.addGeometry(Part.LineSegment(V(38, 150, 0), V(38, 214, 0)), False)
sketch14.addGeometry(Part.ArcOfCircle(Part.Circle(V(48, 214, 0), V(0, 0, 1), 10), math.radians(135), math.radians(180)), False)
sketch14.addGeometry(Part.LineSegment(V(41, 221, 0), V(58, 238, 0)), False)
sketch14.addGeometry(Part.ArcOfCircle(Part.Circle(V(66, 231, 0), V(0, 0, 1), 10), math.radians(90), math.radians(135)), False)
sketch14.addGeometry(Part.LineSegment(V(66, 241, 0), V(205, 241, 0)), False)
sketch14.addGeometry(Part.ArcOfCircle(Part.Circle(V(205, 231, 0), V(0, 0, 1), 10), math.radians(45), math.radians(90)), False)
sketch14.addGeometry(Part.LineSegment(V(212, 238, 0), V(229, 221, 0)), False)
sketch14.addGeometry(Part.ArcOfCircle(Part.Circle(V(222, 214, 0), V(0, 0, 1), 10), math.radians(0), math.radians(45)), False)
sketch14.addGeometry(Part.LineSegment(V(232, 214, 0), V(232, 150, 0)), False)
sketch14.addGeometry(Part.LineSegment(V(232, 150, 0), V(245, 150, 0)), False)
sketch14.addGeometry(Part.LineSegment(V(245, 150, 0), V(245, 211, 0)), False)
sketch14.addGeometry(Part.ArcOfCircle(Part.Circle(V(225, 211, 0), V(0, 0, 1), 20), math.radians(0), math.radians(45)), False)
sketch14.addGeometry(Part.LineSegment(V(239, 225, 0), V(211, 253, 0)), False)
sketch14.addGeometry(Part.ArcOfCircle(Part.Circle(V(197, 239, 0), V(0, 0, 1), 20), math.radians(45), math.radians(90)), False)
sketch14.addGeometry(Part.LineSegment(V(197, 259, 0), V(74, 259, 0)), False)
sketch14.addGeometry(Part.ArcOfCircle(Part.Circle(V(74, 239, 0), V(0, 0, 1), 20), math.radians(90), math.radians(135)), False)
sketch14.addGeometry(Part.LineSegment(V(59, 253, 0), V(31, 225, 0)), False)
sketch14.addGeometry(Part.ArcOfCircle(Part.Circle(V(45, 211, 0), V(0, 0, 1), 20), math.radians(135), math.radians(180)), False)
sketch14.addGeometry(Part.LineSegment(V(25, 211, 0), V(25, 150, 0)), False)
sketch14.addGeometry(Part.LineSegment(V(25, 150, 0), V(38, 150, 0)), False)
sketch14.addConstraint(Sketcher.Constraint("Tangent", 0, 2, 1, 2))
sketch14.addConstraint(Sketcher.Constraint("Tangent", 1, 1, 2, 1))
sketch14.addConstraint(Sketcher.Constraint("Tangent", 2, 2, 3, 2))
sketch14.addConstraint(Sketcher.Constraint("Tangent", 3, 1, 4, 1))
sketch14.addConstraint(Sketcher.Constraint("Tangent", 4, 2, 5, 2))
sketch14.addConstraint(Sketcher.Constraint("Tangent", 5, 1, 6, 1))
sketch14.addConstraint(Sketcher.Constraint("Tangent", 6, 2, 7, 2))
sketch14.addConstraint(Sketcher.Constraint("Tangent", 7, 1, 8, 1))
sketch14.addConstraint(Sketcher.Constraint("Coincident", 8, 2, 9, 1))
sketch14.addConstraint(Sketcher.Constraint("Coincident", 9, 2, 10, 1))
sketch14.addConstraint(Sketcher.Constraint("Tangent", 10, 2, 11, 1))
sketch14.addConstraint(Sketcher.Constraint("Tangent", 11, 2, 12, 1))
sketch14.addConstraint(Sketcher.Constraint("Tangent", 12, 2, 13, 1))
sketch14.addConstraint(Sketcher.Constraint("Tangent", 13, 2, 14, 1))
sketch14.addConstraint(Sketcher.Constraint("Tangent", 14, 2, 15, 1))
sketch14.addConstraint(Sketcher.Constraint("Tangent", 15, 2, 16, 1))
sketch14.addConstraint(Sketcher.Constraint("Tangent", 16, 2, 17, 1))
sketch14.addConstraint(Sketcher.Constraint("Tangent", 17, 2, 18, 1))
sketch14.addConstraint(Sketcher.Constraint("Coincident", 18, 2, 19, 1))
sketch14.addConstraint(Sketcher.Constraint("Coincident", 19, 2, 0, 1))
sketch14.addConstraint(Sketcher.Constraint("Horizontal", 4))
sketch14.addConstraint(Sketcher.Constraint("Horizontal", 9))
sketch14.addConstraint(Sketcher.Constraint("Vertical", 10))
sketch14.addConstraint(Sketcher.Constraint("Horizontal", 14))
sketch14.addConstraint(Sketcher.Constraint("Vertical", 18))
sketch14.addConstraint(Sketcher.Constraint("Horizontal", 19))
sketch14.addConstraint(Sketcher.Constraint("Equal", 1, 3))
sketch14.addConstraint(Sketcher.Constraint("Equal", 3, 5))
sketch14.addConstraint(Sketcher.Constraint("Equal", 5, 7))
sketch14.addConstraint(Sketcher.Constraint("Equal", 11, 13))
sketch14.addConstraint(Sketcher.Constraint("Equal", 13, 15))
sketch14.addConstraint(Sketcher.Constraint("Equal", 15, 17))
sketch14.addConstraint(Sketcher.Constraint("Perpendicular", 2, 6))
sketch14.addConstraint(Sketcher.Constraint("Parallel", 6, 12))
sketch14.addConstraint(Sketcher.Constraint("Perpendicular", 12, 16))
sketch14.addConstraint(Sketcher.Constraint("Horizontal", 1, 3, 7, 3))
sketch14.addConstraint(Sketcher.Constraint("Horizontal", 11, 3, 17, 3))
sketch14.addConstraint(Sketcher.Constraint("Horizontal", 2, 2, 5, 1))
sketch14.addConstraint(Sketcher.Constraint("Horizontal", 0, 2, 7, 1))
sketch14.addConstraint(Sketcher.Constraint("Horizontal", 9, 2, 18, 2))
sketch14.addConstraint(Sketcher.Constraint("Equal", 9, 19))
sketch14.addConstraint(Sketcher.Constraint("Radius", 1, Q("10 mm")))
sketch14.addConstraint(Sketcher.Constraint("Radius", 11, Q("20 mm")))
sketch14.addConstraint(Sketcher.Constraint("Distance", 12, Q("40 mm")))
sketch14.addConstraint(Sketcher.Constraint("DistanceX", 13, 3, 5, 3, Q("8 mm")))
sketch14.addConstraint(Sketcher.Constraint("DistanceY", 5, 3, 13, 3, Q("8 mm")))
sketch14.addConstraint(Sketcher.Constraint("DistanceX", 9, 1, 9, 2, Q("12.965249 mm")))
sketch14.addConstraint(Sketcher.Constraint("DistanceY", 17, 3, 0, 2, Q("2.925801 mm")))
sketch14.addConstraint(Sketcher.Constraint("DistanceX", 4, 1, 4, 2, Q("139.431458 mm")))
sketch14.addConstraint(Sketcher.Constraint("DistanceY", 10, 1, 10, 2, Q("60.857864 mm")))
sketch14.addConstraint(Sketcher.Constraint("DistanceY", -1, 1, 3, 3, Q("231.089488 mm")))
sketch14.addConstraint(Sketcher.Constraint("DistanceX", -1, 1, 7, 3, Q("222.290328 mm")))
pocket13 = doc.addObject("PartDesign::Pocket", "Pocket012")
body.addObject(pocket13)
pocket13.Profile = sketch14
pocket13.Length = 10
pocket13.Reversed = True

sketch15 = doc.addObject("Sketcher::SketchObject", "Sketch014")
body.addObject(sketch15)
sketch15.AttachmentSupport = (doc.XY_Plane, [""])
sketch15.MapMode = "FlatFace"
sketch15.addGeometry(Part.LineSegment(V(105, 44, 0), V(48, 44, 0)), False)
sketch15.addGeometry(Part.ArcOfCircle(Part.Circle(V(48, 54, 0), V(0, 0, 1), 10), math.radians(-180), math.radians(-90)), False)
sketch15.addGeometry(Part.LineSegment(V(38, 54, 0), V(38, 85, 0)), False)
sketch15.addGeometry(Part.LineSegment(V(38, 85, 0), V(25, 85, 0)), False)
sketch15.addGeometry(Part.LineSegment(V(25, 85, 0), V(25, 54, 0)), False)
sketch15.addGeometry(Part.ArcOfCircle(Part.Circle(V(45, 54, 0), V(0, 0, 1), 20), math.radians(-180), math.radians(-90)), False)
sketch15.addGeometry(Part.LineSegment(V(45, 34, 0), V(105, 34, 0)), False)
sketch15.addGeometry(Part.LineSegment(V(105, 34, 0), V(105, 44, 0)), False)
sketch15.addGeometry(Part.ArcOfCircle(Part.Circle(V(222, 54, 0), V(0, 0, 1), 10), math.radians(-90), math.radians(0)), False)
sketch15.addGeometry(Part.LineSegment(V(222, 44, 0), V(165, 44, 0)), False)
sketch15.addGeometry(Part.LineSegment(V(165, 44, 0), V(165, 34, 0)), False)
sketch15.addGeometry(Part.LineSegment(V(165, 34, 0), V(225, 34, 0)), False)
sketch15.addGeometry(Part.ArcOfCircle(Part.Circle(V(225, 54, 0), V(0, 0, 1), 20), math.radians(-90), math.radians(0)), False)
sketch15.addGeometry(Part.LineSegment(V(245, 54, 0), V(245, 85, 0)), False)
sketch15.addGeometry(Part.LineSegment(V(245, 85, 0), V(232, 85, 0)), False)
sketch15.addGeometry(Part.LineSegment(V(232, 85, 0), V(232, 54, 0)), False)
sketch15.addConstraint(Sketcher.Constraint("Tangent", 0, 2, 1, 2))
sketch15.addConstraint(Sketcher.Constraint("Tangent", 1, 1, 2, 1))
sketch15.addConstraint(Sketcher.Constraint("Coincident", 2, 2, 3, 1))
sketch15.addConstraint(Sketcher.Constraint("Coincident", 3, 2, 4, 1))
sketch15.addConstraint(Sketcher.Constraint("Tangent", 4, 2, 5, 1))
sketch15.addConstraint(Sketcher.Constraint("Tangent", 5, 2, 6, 1))
sketch15.addConstraint(Sketcher.Constraint("Coincident", 6, 2, 7, 1))
sketch15.addConstraint(Sketcher.Constraint("Coincident", 7, 2, 0, 1))
sketch15.addConstraint(Sketcher.Constraint("Tangent", 8, 1, 9, 1))
sketch15.addConstraint(Sketcher.Constraint("Coincident", 9, 2, 10, 1))
sketch15.addConstraint(Sketcher.Constraint("Coincident", 10, 2, 11, 1))
sketch15.addConstraint(Sketcher.Constraint("Tangent", 11, 2, 12, 1))
sketch15.addConstraint(Sketcher.Constraint("Tangent", 12, 2, 13, 1))
sketch15.addConstraint(Sketcher.Constraint("Coincident", 13, 2, 14, 1))
sketch15.addConstraint(Sketcher.Constraint("Coincident", 14, 2, 15, 1))
sketch15.addConstraint(Sketcher.Constraint("Tangent", 15, 2, 8, 2))
sketch15.addConstraint(Sketcher.Constraint("Horizontal", 0))
sketch15.addConstraint(Sketcher.Constraint("Vertical", 2))
sketch15.addConstraint(Sketcher.Constraint("Horizontal", 3))
sketch15.addConstraint(Sketcher.Constraint("Vertical", 4))
sketch15.addConstraint(Sketcher.Constraint("Horizontal", 6))
sketch15.addConstraint(Sketcher.Constraint("Vertical", 7))
sketch15.addConstraint(Sketcher.Constraint("Horizontal", 9))
sketch15.addConstraint(Sketcher.Constraint("Vertical", 10))
sketch15.addConstraint(Sketcher.Constraint("Horizontal", 11))
sketch15.addConstraint(Sketcher.Constraint("Vertical", 13))
sketch15.addConstraint(Sketcher.Constraint("Horizontal", 14))
sketch15.addConstraint(Sketcher.Constraint("Vertical", 15))
sketch15.addConstraint(Sketcher.Constraint("Equal", 1, 8))
sketch15.addConstraint(Sketcher.Constraint("Equal", 5, 12))
sketch15.addConstraint(Sketcher.Constraint("Horizontal", 1, 3, 5, 3))
sketch15.addConstraint(Sketcher.Constraint("Horizontal", 5, 3, 8, 3))
sketch15.addConstraint(Sketcher.Constraint("Horizontal", 8, 3, 12, 3))
sketch15.addConstraint(Sketcher.Constraint("Horizontal", 3, 2, 13, 2))
sketch15.addConstraint(Sketcher.Constraint("Equal", 0, 9))
sketch15.addConstraint(Sketcher.Constraint("Equal", 6, 11))
sketch15.addConstraint(Sketcher.Constraint("Radius", 1, Q("10 mm")))
sketch15.addConstraint(Sketcher.Constraint("Radius", 5, Q("20 mm")))
sketch15.addConstraint(Sketcher.Constraint("DistanceX", 6, 1, 6, 2, Q("60 mm")))
sketch15.addConstraint(Sketcher.Constraint("DistanceX", 5, 3, 12, 3, Q("180 mm")))
sketch15.addConstraint(Sketcher.Constraint("DistanceX", 0, 2, 0, 1, Q("57.034751 mm")))
sketch15.addConstraint(Sketcher.Constraint("DistanceY", 2, 1, 2, 2, Q("30.857864 mm")))
sketch15.addConstraint(Sketcher.Constraint("DistanceY", -1, 1, 1, 3, Q("54.089488 mm")))
sketch15.addConstraint(Sketcher.Constraint("DistanceX", -1, 1, 1, 3, Q("48.186724 mm")))
pocket14 = doc.addObject("PartDesign::Pocket", "Pocket013")
body.addObject(pocket14)
pocket14.Profile = sketch15
pocket14.Length = 10
pocket14.Reversed = True

doc.recompute()
